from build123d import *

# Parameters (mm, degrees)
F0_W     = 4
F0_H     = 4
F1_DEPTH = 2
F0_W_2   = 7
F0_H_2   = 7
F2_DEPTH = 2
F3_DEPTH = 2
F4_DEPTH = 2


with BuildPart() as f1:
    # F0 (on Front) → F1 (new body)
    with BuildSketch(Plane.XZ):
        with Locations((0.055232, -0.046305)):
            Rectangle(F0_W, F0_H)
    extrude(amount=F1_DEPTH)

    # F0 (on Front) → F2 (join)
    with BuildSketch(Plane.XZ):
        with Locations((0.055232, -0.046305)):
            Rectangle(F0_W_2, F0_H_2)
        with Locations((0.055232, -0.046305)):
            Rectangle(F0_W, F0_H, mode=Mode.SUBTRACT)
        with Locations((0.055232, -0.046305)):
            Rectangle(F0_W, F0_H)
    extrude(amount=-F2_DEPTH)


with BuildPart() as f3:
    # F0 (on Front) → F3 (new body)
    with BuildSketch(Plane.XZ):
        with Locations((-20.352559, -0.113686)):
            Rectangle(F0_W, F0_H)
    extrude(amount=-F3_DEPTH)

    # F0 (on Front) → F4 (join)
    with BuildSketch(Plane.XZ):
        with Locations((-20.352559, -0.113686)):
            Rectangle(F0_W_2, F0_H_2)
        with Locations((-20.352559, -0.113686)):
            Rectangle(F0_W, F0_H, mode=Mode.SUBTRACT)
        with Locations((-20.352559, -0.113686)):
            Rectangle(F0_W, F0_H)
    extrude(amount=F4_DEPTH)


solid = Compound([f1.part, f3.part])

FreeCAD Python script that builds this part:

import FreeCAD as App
import Part
import Sketcher
Q = App.Units.Quantity

doc = App.newDocument("Part")
body = doc.addObject("PartDesign::Body", "Body")

# Sketch on XZ plane
sketch1 = doc.addObject("Sketcher::SketchObject", "Sketch")
body.addObject(sketch1)
sketch1.AttachmentSupport = (doc.XZ_Plane, [""])
sketch1.MapMode = "FlatFace"
sketch1.addGeometry([
    Part.LineSegment(App.Vector(-1.9, 2, 0), App.Vector(-1.9, -2, 0)),
    Part.LineSegment(App.Vector(-1.9, -2, 0), App.Vector(2.1, -2, 0)),
    Part.LineSegment(App.Vector(2.1, -2, 0), App.Vector(2.1, 2, 0)),
    Part.LineSegment(App.Vector(2.1, 2, 0), App.Vector(-1.9, 2, 0)),
], False)
sketch1.addConstraint([
    Sketcher.Constraint("Coincident", 0, 2, 1, 1),
    Sketcher.Constraint("Coincident", 1, 2, 2, 1),
    Sketcher.Constraint("Coincident", 2, 2, 3, 1),
    Sketcher.Constraint("Coincident", 3, 2, 0, 1),
    Sketcher.Constraint("Vertical", 0),
    Sketcher.Constraint("Horizontal", 1),
    Sketcher.Constraint("Vertical", 2),
    Sketcher.Constraint("Horizontal", 3),
    Sketcher.Constraint("Equal", 3, 0),
    Sketcher.Constraint("DistanceX", 1, 1, 1, 2, Q("4 mm")),
    Sketcher.Constraint("DistanceX", 0, 2, -1, 1, Q("1.944768 mm")),
    Sketcher.Constraint("DistanceY", 0, 2, -1, 1, Q("2.046305 mm")),
])
pad1 = doc.addObject("PartDesign::Pad", "Pad")
body.addObject(pad1)
pad1.Profile = sketch1
pad1.Length = 2

# Sketch on XZ plane
sketch2 = doc.addObject("Sketcher::SketchObject", "Sketch001")
body.addObject(sketch2)
sketch2.AttachmentSupport = (doc.XZ_Plane, [""])
sketch2.MapMode = "FlatFace"
sketch2.addGeometry([
    Part.LineSegment(App.Vector(-3, 3, 0), App.Vector(-3, -4, 0)),
    Part.LineSegment(App.Vector(-3, -4, 0), App.Vector(4, -4, 0)),
    Part.LineSegment(App.Vector(4, -4, 0), App.Vector(4, 3, 0)),
    Part.LineSegment(App.Vector(4, 3, 0), App.Vector(-3, 3, 0)),
], False)
sketch2.addConstraint([
    Sketcher.Constraint("Coincident", 0, 2, 1, 1),
    Sketcher.Constraint("Coincident", 1, 2, 2, 1),
    Sketcher.Constraint("Coincident", 2, 2, 3, 1),
    Sketcher.Constraint("Coincident", 3, 2, 0, 1),
    Sketcher.Constraint("Vertical", 0),
    Sketcher.Constraint("Horizontal", 1),
    Sketcher.Constraint("Vertical", 2),
    Sketcher.Constraint("Horizontal", 3),
    Sketcher.Constraint("Equal", 3, 0),
    Sketcher.Constraint("DistanceX", 1, 1, 1, 2, Q("7 mm")),
    Sketcher.Constraint("DistanceX", 0, 2, -1, 1, Q("3.444768 mm")),
    Sketcher.Constraint("DistanceY", 0, 2, -1, 1, Q("3.546305 mm")),
])
pad2 = doc.addObject("PartDesign::Pad", "Pad001")
body.addObject(pad2)
pad2.Profile = sketch2
pad2.Length = 2
pad2.Reversed = True
body2 = doc.addObject("PartDesign::Body", "Body001")

# Sketch on XZ plane
sketch3 = doc.addObject("Sketcher::SketchObject", "Sketch002")
body2.addObject(sketch3)
sketch3.AttachmentSupport = (doc.getObject("XZ_Plane001"), [""])
sketch3.MapMode = "FlatFace"
sketch3.addGeometry([
    Part.LineSegment(App.Vector(-22.4, 1.9, 0), App.Vector(-22.4, -2.1, 0)),
    Part.LineSegment(App.Vector(-22.4, -2.1, 0), App.Vector(-18.4, -2.1, 0)),
    Part.LineSegment(App.Vector(-18.4, -2.1, 0), App.Vector(-18.4, 1.9, 0)),
    Part.LineSegment(App.Vector(-18.4, 1.9, 0), App.Vector(-22.4, 1.9, 0)),
], False)
sketch3.addConstraint([
    Sketcher.Constraint("Coincident", 0, 2, 1, 1),
    Sketcher.Constraint("Coincident", 1, 2, 2, 1),
    Sketcher.Constraint("Coincident", 2, 2, 3, 1),
    Sketcher.Constraint("Coincident", 3, 2, 0, 1),
    Sketcher.Constraint("Vertical", 0),
    Sketcher.Constraint("Horizontal", 1),
    Sketcher.Constraint("Vertical", 2),
    Sketcher.Constraint("Horizontal", 3),
    Sketcher.Constraint("Equal", 3, 0),
    Sketcher.Constraint("DistanceX", 1, 1, 1, 2, Q("4 mm")),
    Sketcher.Constraint("DistanceX", 0, 2, -1, 1, Q("22.352559 mm")),
    Sketcher.Constraint("DistanceY", 0, 2, -1, 1, Q("2.113686 mm")),
])
pad3 = doc.addObject("PartDesign::Pad", "Pad002")
body2.addObject(pad3)
pad3.Profile = sketch3
pad3.Length = 2
pad3.Reversed = True

# Sketch on XZ plane
sketch4 = doc.addObject("Sketcher::SketchObject", "Sketch003")
body2.addObject(sketch4)
sketch4.AttachmentSupport = (doc.getObject("XZ_Plane001"), [""])
sketch4.MapMode = "FlatFace"
sketch4.addGeometry([
    Part.LineSegment(App.Vector(-24, 3, 0), App.Vector(-24, -4, 0)),
    Part.LineSegment(App.Vector(-24, -4, 0), App.Vector(-17, -4, 0)),
    Part.LineSegment(App.Vector(-17, -4, 0), App.Vector(-17, 3, 0)),
    Part.LineSegment(App.Vector(-17, 3, 0), App.Vector(-24, 3, 0)),
], False)
sketch4.addConstraint([
    Sketcher.Constraint("Coincident", 0, 2, 1, 1),
    Sketcher.Constraint("Coincident", 1, 2, 2, 1),
    Sketcher.Constraint("Coincident", 2, 2, 3, 1),
    Sketcher.Constraint("Coincident", 3, 2, 0, 1),
    Sketcher.Constraint("Vertical", 0),
    Sketcher.Constraint("Horizontal", 1),
    Sketcher.Constraint("Vertical", 2),
    Sketcher.Constraint("Horizontal", 3),
    Sketcher.Constraint("Equal", 3, 0),
    Sketcher.Constraint("DistanceX", 1, 1, 1, 2, Q("7 mm")),
    Sketcher.Constraint("DistanceX", 0, 2, -1, 1, Q("23.852559 mm")),
    Sketcher.Constraint("DistanceY", 0, 2, -1, 1, Q("3.613686 mm")),
])
pad4 = doc.addObject("PartDesign::Pad", "Pad003")
body2.addObject(pad4)
pad4.Profile = sketch4
pad4.Length = 2

doc.recompute()
